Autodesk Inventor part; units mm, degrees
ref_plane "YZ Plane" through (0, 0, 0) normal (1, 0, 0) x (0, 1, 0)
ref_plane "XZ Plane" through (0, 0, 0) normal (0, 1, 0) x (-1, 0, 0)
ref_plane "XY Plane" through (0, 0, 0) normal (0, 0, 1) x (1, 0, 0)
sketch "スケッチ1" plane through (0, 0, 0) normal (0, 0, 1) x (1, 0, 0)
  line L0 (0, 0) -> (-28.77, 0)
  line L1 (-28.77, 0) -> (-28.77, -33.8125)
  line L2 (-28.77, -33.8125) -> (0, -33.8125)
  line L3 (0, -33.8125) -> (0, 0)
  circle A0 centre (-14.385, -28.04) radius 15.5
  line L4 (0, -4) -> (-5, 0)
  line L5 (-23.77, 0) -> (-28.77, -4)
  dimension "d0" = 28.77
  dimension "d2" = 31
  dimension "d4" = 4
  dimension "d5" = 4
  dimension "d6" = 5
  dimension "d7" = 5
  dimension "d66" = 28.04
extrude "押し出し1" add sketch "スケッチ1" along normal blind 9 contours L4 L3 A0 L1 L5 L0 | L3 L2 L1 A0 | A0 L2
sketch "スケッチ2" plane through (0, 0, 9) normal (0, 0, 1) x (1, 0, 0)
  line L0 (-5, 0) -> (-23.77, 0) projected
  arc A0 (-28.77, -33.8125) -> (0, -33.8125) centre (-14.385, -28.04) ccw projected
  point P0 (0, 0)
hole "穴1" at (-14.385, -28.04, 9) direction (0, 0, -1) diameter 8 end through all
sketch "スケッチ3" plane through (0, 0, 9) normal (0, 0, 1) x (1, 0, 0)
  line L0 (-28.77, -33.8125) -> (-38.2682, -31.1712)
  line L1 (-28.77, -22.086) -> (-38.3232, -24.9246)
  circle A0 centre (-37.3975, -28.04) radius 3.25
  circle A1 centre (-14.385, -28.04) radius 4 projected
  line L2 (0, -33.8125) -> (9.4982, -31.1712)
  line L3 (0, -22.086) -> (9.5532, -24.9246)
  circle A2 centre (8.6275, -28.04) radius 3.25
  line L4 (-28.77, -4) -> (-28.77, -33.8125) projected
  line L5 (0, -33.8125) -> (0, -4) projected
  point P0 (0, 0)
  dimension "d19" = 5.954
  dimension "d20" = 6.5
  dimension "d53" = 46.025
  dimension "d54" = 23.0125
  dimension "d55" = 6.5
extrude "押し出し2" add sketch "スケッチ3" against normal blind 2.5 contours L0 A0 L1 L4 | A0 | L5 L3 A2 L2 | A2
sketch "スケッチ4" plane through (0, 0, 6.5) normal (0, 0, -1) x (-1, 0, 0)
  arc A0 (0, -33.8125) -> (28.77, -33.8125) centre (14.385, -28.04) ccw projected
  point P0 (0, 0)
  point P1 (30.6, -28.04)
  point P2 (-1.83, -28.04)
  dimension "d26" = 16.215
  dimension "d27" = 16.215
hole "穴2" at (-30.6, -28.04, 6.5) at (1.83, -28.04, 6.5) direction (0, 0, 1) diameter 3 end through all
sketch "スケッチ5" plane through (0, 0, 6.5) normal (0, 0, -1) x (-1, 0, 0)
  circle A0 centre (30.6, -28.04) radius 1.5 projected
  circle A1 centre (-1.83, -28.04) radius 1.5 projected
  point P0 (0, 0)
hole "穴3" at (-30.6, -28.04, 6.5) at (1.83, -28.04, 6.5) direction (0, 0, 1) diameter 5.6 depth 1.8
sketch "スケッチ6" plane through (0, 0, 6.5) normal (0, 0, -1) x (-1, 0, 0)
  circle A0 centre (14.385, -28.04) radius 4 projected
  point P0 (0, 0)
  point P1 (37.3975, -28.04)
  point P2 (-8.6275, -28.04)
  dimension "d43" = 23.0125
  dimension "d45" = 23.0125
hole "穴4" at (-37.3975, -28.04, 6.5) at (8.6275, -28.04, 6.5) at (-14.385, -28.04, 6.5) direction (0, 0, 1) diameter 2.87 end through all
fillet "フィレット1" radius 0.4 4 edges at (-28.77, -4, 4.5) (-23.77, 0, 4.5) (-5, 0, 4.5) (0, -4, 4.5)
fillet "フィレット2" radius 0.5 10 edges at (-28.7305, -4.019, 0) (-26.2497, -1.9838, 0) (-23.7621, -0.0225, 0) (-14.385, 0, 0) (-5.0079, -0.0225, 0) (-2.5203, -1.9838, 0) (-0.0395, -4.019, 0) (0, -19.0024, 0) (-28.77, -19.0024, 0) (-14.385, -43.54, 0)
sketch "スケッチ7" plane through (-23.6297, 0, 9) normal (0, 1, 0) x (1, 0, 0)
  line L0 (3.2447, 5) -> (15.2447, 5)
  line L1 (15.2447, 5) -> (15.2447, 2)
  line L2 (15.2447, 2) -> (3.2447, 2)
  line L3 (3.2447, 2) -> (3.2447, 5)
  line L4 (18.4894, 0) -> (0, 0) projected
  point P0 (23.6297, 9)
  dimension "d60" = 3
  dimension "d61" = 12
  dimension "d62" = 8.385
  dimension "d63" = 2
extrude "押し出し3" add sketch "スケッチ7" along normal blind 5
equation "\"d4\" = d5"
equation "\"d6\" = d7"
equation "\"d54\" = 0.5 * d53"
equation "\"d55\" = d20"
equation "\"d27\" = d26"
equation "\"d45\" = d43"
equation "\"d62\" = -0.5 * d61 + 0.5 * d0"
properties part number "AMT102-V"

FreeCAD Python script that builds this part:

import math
import FreeCAD as App
import Part
import Sketcher

V = App.Vector
Q = App.Units.Quantity


def edges_at(feature, points):
    """Names of the edges that pass closest to the given points."""
    edges = feature.Shape.Edges
    near = lambda p: min(range(len(edges)), key=lambda i: edges[i].distToShape(Part.Vertex(*p))[0])
    return sorted({f"Edge{near(p) + 1}" for p in points})

doc = App.newDocument("Part")
body = doc.addObject("PartDesign::Body", "Body")

# Sketch on XY plane
sketch1 = body.newObject("Sketcher::SketchObject", "Sketch")
sketch1.AttachmentSupport = (doc.getObject("XY_Plane"), [""])
sketch1.MapMode = "FlatFace"
sketch1.addGeometry([
    Part.LineSegment(V(0, -4, 0), V(-5, 0, 0)),  # 0
    Part.LineSegment(V(-5, 0, 0), V(-24, 0, 0)),  # 1
    Part.LineSegment(V(-24, 0, 0), V(-29, -4, 0)),  # 2
    Part.LineSegment(V(-29, -4, 0), V(-29, -34, 0)),  # 3
    Part.ArcOfCircle(Part.Circle(V(-14, -28, 0), V(0, 0, 1), 16), math.radians(-158), math.radians(-22)),  # 4
    Part.LineSegment(V(0, -34, 0), V(0, -4, 0)),  # 5
], False)
sketch1.addConstraint([
    Sketcher.Constraint("Coincident", 0, 2, 1, 1),
    Sketcher.Constraint("Coincident", 1, 2, 2, 1),
    Sketcher.Constraint("Coincident", 2, 2, 3, 1),
    Sketcher.Constraint("Coincident", 3, 2, 4, 1),
    Sketcher.Constraint("Coincident", 4, 2, 5, 1),
    Sketcher.Constraint("Coincident", 5, 2, 0, 1),
    Sketcher.Constraint("Horizontal", 1),
    Sketcher.Constraint("Vertical", 3),
    Sketcher.Constraint("Vertical", 5),
    Sketcher.Constraint("PointOnObject", 0, 2, -1),
    Sketcher.Constraint("PointOnObject", 4, 2, -2),
    Sketcher.Constraint("Horizontal", 3, 2, 4, 2),
    Sketcher.Constraint("Horizontal", 2, 2, 5, 2),
    Sketcher.Constraint("Equal", 0, 2),
    Sketcher.Constraint("Radius", 4, Q("15.5 mm")),
    Sketcher.Constraint("DistanceX", 0, 2, -1, 1, Q("5 mm")),
    Sketcher.Constraint("DistanceY", 2, 2, -1, 1, Q("4 mm")),
    Sketcher.Constraint("DistanceY", 4, 3, -1, 1, Q("28.04 mm")),
    Sketcher.Constraint("DistanceX", 2, 2, -1, 1, Q("28.77 mm")),
])
pad1 = body.newObject("PartDesign::Pad", "Pad")
pad1.Profile = sketch1
pad1.Length = 9

# Sketch on XY plane
sketch2 = body.newObject("Sketcher::SketchObject", "Sketch001")
sketch2.AttachmentSupport = (doc.getObject("XY_Plane"), [""])
sketch2.MapMode = "FlatFace"
sketch2.AttachmentOffset = App.Placement(V(0, 0, 9), App.Rotation())
sketch2.addGeometry(Part.Circle(V(-14.4, -28, 0), V(0, 0, 1), 4), False)
sketch2.addConstraint([
    Sketcher.Constraint("Diameter", 0, Q("8 mm")),
    Sketcher.Constraint("DistanceY", 0, 3, -1, 1, Q("28.04 mm")),
    Sketcher.Constraint("DistanceX", 0, 3, -1, 1, Q("14.385 mm")),
])
doc.recompute()
hole = body.newObject("PartDesign::Hole", "Hole")
hole.Profile = sketch2
hole.ThreadType = "None"
hole.Diameter = 8
hole.DepthType = "ThroughAll"

# Sketch on XY plane
sketch3 = body.newObject("Sketcher::SketchObject", "Sketch002")
sketch3.AttachmentSupport = (doc.getObject("XY_Plane"), [""])
sketch3.MapMode = "FlatFace"
sketch3.AttachmentOffset = App.Placement(V(0, 0, 9), App.Rotation())
sketch3.addGeometry([
    Part.LineSegment(V(-38.3, -31.2, 0), V(-28.8, -33.8, 0)),  # 0
    Part.LineSegment(V(-28.8, -33.8, 0), V(-28.8, -22.1, 0)),  # 1
    Part.LineSegment(V(-28.8, -22.1, 0), V(-38.3, -24.9, 0)),  # 2
    Part.ArcOfCircle(Part.Circle(V(-37.4, -28, 0), V(0, 0, 1), 3.2), math.radians(107), math.radians(254)),  # 3
    Part.LineSegment(V(0, -22.1, 0), V(0, -33.8, 0)),  # 4
    Part.LineSegment(V(0, -33.8, 0), V(9.5, -31.2, 0)),  # 5
    Part.ArcOfCircle(Part.Circle(V(8.6, -28, 0), V(0, 0, 1), 3.2), math.radians(-74), math.radians(73)),  # 6
    Part.LineSegment(V(9.6, -24.9, 0), V(0, -22.1, 0)),  # 7
], False)
sketch3.addConstraint([
    Sketcher.Constraint("Coincident", 0, 2, 1, 1),
    Sketcher.Constraint("Coincident", 1, 2, 2, 1),
    Sketcher.Constraint("Tangent", 2, 2, 3, 1),
    Sketcher.Constraint("Tangent", 3, 2, 0, 1),
    Sketcher.Constraint("Coincident", 4, 2, 5, 1),
    Sketcher.Constraint("Tangent", 5, 2, 6, 1),
    Sketcher.Constraint("Tangent", 6, 2, 7, 1),
    Sketcher.Constraint("Coincident", 7, 2, 4, 1),
    Sketcher.Constraint("Vertical", 1),
    Sketcher.Constraint("Vertical", 4),
    Sketcher.Constraint("Equal", 3, 6),
    Sketcher.Constraint("PointOnObject", 4, 2, -2),
    Sketcher.Constraint("Horizontal", 3, 3, 6, 3),
    Sketcher.Constraint("Horizontal", 0, 2, 4, 2),
    Sketcher.Constraint("Horizontal", 3, 2, 5, 2),
    Sketcher.Constraint("Horizontal", 2, 2, 6, 2),
    Sketcher.Constraint("Radius", 3, Q("3.25 mm")),
    Sketcher.Constraint("DistanceX", 3, 3, 6, 3, Q("46.025 mm")),
    Sketcher.Constraint("DistanceY", 3, 3, 1, 2, Q("5.954 mm")),
    Sketcher.Constraint("Angle", 0, Q("-15.5404 deg")),
    Sketcher.Constraint("DistanceY", 3, 3, -1, 1, Q("28.04 mm")),
    Sketcher.Constraint("DistanceX", 0, 2, -1, 1, Q("28.77 mm")),
])
pad2 = body.newObject("PartDesign::Pad", "Pad001")
pad2.Profile = sketch3
pad2.Length = 2.5
pad2.Reversed = True

# Sketch on XY plane
sketch4 = body.newObject("Sketcher::SketchObject", "Sketch003")
sketch4.AttachmentSupport = (doc.getObject("XY_Plane"), [""])
sketch4.MapMode = "FlatFace"
sketch4.AttachmentOffset = App.Placement(V(0, 0, 6.5), App.Rotation())
sketch4.addGeometry([
    Part.Circle(V(-30.6, -28, 0), V(0, 0, 1), 1.5),
    Part.Circle(V(1.8, -28, 0), V(0, 0, 1), 1.5),
], False)
sketch4.addConstraint([
    Sketcher.Constraint("Equal", 0, 1),
    Sketcher.Constraint("Horizontal", 0, 3, 1, 3),
    Sketcher.Constraint("Diameter", 0, Q("3 mm")),
    Sketcher.Constraint("DistanceX", 0, 3, -1, 1, Q("30.6 mm")),
    Sketcher.Constraint("DistanceY", 0, 3, -1, 1, Q("28.04 mm")),
    Sketcher.Constraint("DistanceX", -1, 1, 1, 3, Q("1.83 mm")),
])
doc.recompute()
hole2 = body.newObject("PartDesign::Hole", "Hole001")
hole2.Profile = sketch4
hole2.ThreadType = "None"
hole2.Diameter = 3
hole2.DepthType = "ThroughAll"
hole2.Reversed = True

# Sketch on XY plane
sketch5 = body.newObject("Sketcher::SketchObject", "Sketch004")
sketch5.AttachmentSupport = (doc.getObject("XY_Plane"), [""])
sketch5.MapMode = "FlatFace"
sketch5.AttachmentOffset = App.Placement(V(0, 0, 6.5), App.Rotation())
sketch5.addGeometry([
    Part.Circle(V(-30.6, -28, 0), V(0, 0, 1), 2.8),
    Part.Circle(V(1.8, -28, 0), V(0, 0, 1), 2.8),
], False)
sketch5.addConstraint([
    Sketcher.Constraint("Equal", 0, 1),
    Sketcher.Constraint("Horizontal", 0, 3, 1, 3),
    Sketcher.Constraint("Diameter", 0, Q("5.6 mm")),
    Sketcher.Constraint("DistanceX", 0, 3, -1, 1, Q("30.6 mm")),
    Sketcher.Constraint("DistanceY", 0, 3, -1, 1, Q("28.04 mm")),
    Sketcher.Constraint("DistanceX", -1, 1, 1, 3, Q("1.83 mm")),
])
doc.recompute()
hole3 = body.newObject("PartDesign::Hole", "Hole002")
hole3.Profile = sketch5
hole3.ThreadType = "None"
hole3.Diameter = 5.6
hole3.DepthType = "Dimension"
hole3.Depth = 1.8
hole3.DrillPoint = "Flat"
hole3.Reversed = True

# Sketch on XY plane
sketch6 = body.newObject("Sketcher::SketchObject", "Sketch005")
sketch6.AttachmentSupport = (doc.getObject("XY_Plane"), [""])
sketch6.MapMode = "FlatFace"
sketch6.AttachmentOffset = App.Placement(V(0, 0, 6.5), App.Rotation())
sketch6.addGeometry([
    Part.Circle(V(-37.4, -28, 0), V(0, 0, 1), 1.4),
    Part.Circle(V(8.6, -28, 0), V(0, 0, 1), 1.4),
    Part.Circle(V(-14.4, -28, 0), V(0, 0, 1), 1.4),
], False)
sketch6.addConstraint([
    Sketcher.Constraint("Equal", 0, 1),
    Sketcher.Constraint("Equal", 1, 2),
    Sketcher.Constraint("Horizontal", 0, 3, 1, 3),
    Sketcher.Constraint("Horizontal", 1, 3, 2, 3),
    Sketcher.Constraint("Diameter", 0, Q("2.87 mm")),
    Sketcher.Constraint("DistanceY", 0, 3, -1, 1, Q("28.04 mm")),
    Sketcher.Constraint("DistanceX", 2, 3, -1, 1, Q("14.385 mm")),
    Sketcher.Constraint("DistanceX", 0, 3, 1, 3, Q("46.025 mm")),
    Sketcher.Constraint("DistanceX", 0, 3, -1, 1, Q("37.3975 mm")),
])
doc.recompute()
hole4 = body.newObject("PartDesign::Hole", "Hole003")
hole4.Profile = sketch6
hole4.ThreadType = "None"
hole4.Diameter = 2.87
hole4.DepthType = "ThroughAll"
hole4.Reversed = True
doc.recompute()

fillet = body.newObject("PartDesign::Fillet", "Fillet")
fillet.Base = (hole4, edges_at(hole4, [
    (-28.77, -4, 4.5),
    (-23.77, 0, 4.5),
    (-5, 0, 4.5),
    (0, -4, 4.5),
]))
fillet.Radius = 0.4
doc.recompute()

fillet2 = body.newObject("PartDesign::Fillet", "Fillet001")
fillet2.Base = (fillet, edges_at(fillet, [
    (-28.73, -4.019, 0),
    (-26.25, -1.984, 0),
    (-23.762, -0.022, 0),
    (-14.385, 0, 0),
    (-5.008, -0.022, 0),
    (-2.52, -1.984, 0),
    (-0.04, -4.019, 0),
    (0, -19.002, 0),
    (-28.77, -19.002, 0),
    (-14.385, -43.54, 0),
]))
fillet2.Radius = 0.5

# Sketch on XZ plane
sketch7 = body.newObject("Sketcher::SketchObject", "Sketch006")
sketch7.AttachmentSupport = (doc.getObject("XZ_Plane"), [""])
sketch7.MapMode = "FlatFace"
sketch7.addGeometry([
    Part.LineSegment(V(-8.4, 4, 0), V(-20.4, 4, 0)),
    Part.LineSegment(V(-20.4, 4, 0), V(-20.4, 7, 0)),
    Part.LineSegment(V(-20.4, 7, 0), V(-8.4, 7, 0)),
    Part.LineSegment(V(-8.4, 7, 0), V(-8.4, 4, 0)),
], False)
sketch7.addConstraint([
    Sketcher.Constraint("Coincident", 0, 2, 1, 1),
    Sketcher.Constraint("Coincident", 1, 2, 2, 1),
    Sketcher.Constraint("Coincident", 2, 2, 3, 1),
    Sketcher.Constraint("Coincident", 3, 2, 0, 1),
    Sketcher.Constraint("Horizontal", 0),
    Sketcher.Constraint("Vertical", 1),
    Sketcher.Constraint("Horizontal", 2),
    Sketcher.Constraint("Vertical", 3),
    Sketcher.Constraint("DistanceX", 0, 2, 0, 1, Q("12 mm")),
    Sketcher.Constraint("DistanceY", 1, 1, 1, 2, Q("3 mm")),
    Sketcher.Constraint("DistanceX", 2, 2, -1, 1, Q("8.385 mm")),
    Sketcher.Constraint("DistanceY", -1, 1, 0, 2, Q("4 mm")),
])
pad3 = body.newObject("PartDesign::Pad", "Pad002")
pad3.Profile = sketch7
pad3.Length = 5
pad3.Reversed = True

doc.recompute()
